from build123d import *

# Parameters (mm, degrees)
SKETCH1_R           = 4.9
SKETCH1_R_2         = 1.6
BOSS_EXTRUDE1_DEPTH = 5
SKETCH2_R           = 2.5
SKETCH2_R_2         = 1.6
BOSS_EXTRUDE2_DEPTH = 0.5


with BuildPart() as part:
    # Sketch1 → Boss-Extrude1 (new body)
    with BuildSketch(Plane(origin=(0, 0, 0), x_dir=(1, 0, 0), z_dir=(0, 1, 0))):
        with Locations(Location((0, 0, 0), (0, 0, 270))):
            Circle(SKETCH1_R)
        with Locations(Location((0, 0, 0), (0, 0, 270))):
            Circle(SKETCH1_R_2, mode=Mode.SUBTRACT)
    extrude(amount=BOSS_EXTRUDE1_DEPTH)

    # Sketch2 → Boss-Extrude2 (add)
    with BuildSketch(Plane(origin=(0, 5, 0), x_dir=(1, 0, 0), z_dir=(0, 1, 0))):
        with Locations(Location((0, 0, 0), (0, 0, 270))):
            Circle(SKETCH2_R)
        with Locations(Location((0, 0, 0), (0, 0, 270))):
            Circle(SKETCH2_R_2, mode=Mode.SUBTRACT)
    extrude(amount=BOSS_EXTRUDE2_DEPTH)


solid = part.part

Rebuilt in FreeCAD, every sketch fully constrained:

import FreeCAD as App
import Part
import Sketcher

V = App.Vector

doc = App.newDocument("Part")
body = doc.addObject("PartDesign::Body", "Body")

# Sketch on XZ plane
sketch1 = body.newObject("Sketcher::SketchObject", "Sketch")
sketch1.AttachmentSupport = (doc.getObject("XZ_Plane"), [""])
sketch1.MapMode = "FlatFace"
sketch1.addGeometry([
    Part.Circle(V(0, 0, 0), V(0, 0, 1), 4.9),
    Part.Circle(V(0, 0, 0), V(0, 0, 1), 1.6),
], False)
sketch1.addConstraint([
    Sketcher.Constraint("Coincident", 0, 3, -1, 1),
    Sketcher.Constraint("Coincident", 1, 3, -1, 1),
    Sketcher.Constraint("Diameter", 0, 9.8),
    Sketcher.Constraint("Diameter", 1, 3.2),
])
pad1 = body.newObject("PartDesign::Pad", "Pad")
pad1.Profile = sketch1
pad1.Length = 5
pad1.Reversed = True

# Sketch on XZ plane
sketch2 = body.newObject("Sketcher::SketchObject", "Sketch001")
sketch2.AttachmentSupport = (doc.getObject("XZ_Plane"), [""])
sketch2.MapMode = "FlatFace"
sketch2.AttachmentOffset = App.Placement(V(0, 0, -5), App.Rotation())
sketch2.addGeometry([
    Part.Circle(V(0, 0, 0), V(0, 0, 1), 2.5),
    Part.Circle(V(0, 0, 0), V(0, 0, 1), 1.6),
], False)
sketch2.addConstraint([
    Sketcher.Constraint("Coincident", 0, 3, -1, 1),
    Sketcher.Constraint("Coincident", 1, 3, -1, 1),
    Sketcher.Constraint("Diameter", 0, 5.0),
    Sketcher.Constraint("Diameter", 1, 3.2),
])
pad2 = body.newObject("PartDesign::Pad", "Pad001")
pad2.Profile = sketch2
pad2.Length = 0.5
pad2.Reversed = True

doc.recompute()
